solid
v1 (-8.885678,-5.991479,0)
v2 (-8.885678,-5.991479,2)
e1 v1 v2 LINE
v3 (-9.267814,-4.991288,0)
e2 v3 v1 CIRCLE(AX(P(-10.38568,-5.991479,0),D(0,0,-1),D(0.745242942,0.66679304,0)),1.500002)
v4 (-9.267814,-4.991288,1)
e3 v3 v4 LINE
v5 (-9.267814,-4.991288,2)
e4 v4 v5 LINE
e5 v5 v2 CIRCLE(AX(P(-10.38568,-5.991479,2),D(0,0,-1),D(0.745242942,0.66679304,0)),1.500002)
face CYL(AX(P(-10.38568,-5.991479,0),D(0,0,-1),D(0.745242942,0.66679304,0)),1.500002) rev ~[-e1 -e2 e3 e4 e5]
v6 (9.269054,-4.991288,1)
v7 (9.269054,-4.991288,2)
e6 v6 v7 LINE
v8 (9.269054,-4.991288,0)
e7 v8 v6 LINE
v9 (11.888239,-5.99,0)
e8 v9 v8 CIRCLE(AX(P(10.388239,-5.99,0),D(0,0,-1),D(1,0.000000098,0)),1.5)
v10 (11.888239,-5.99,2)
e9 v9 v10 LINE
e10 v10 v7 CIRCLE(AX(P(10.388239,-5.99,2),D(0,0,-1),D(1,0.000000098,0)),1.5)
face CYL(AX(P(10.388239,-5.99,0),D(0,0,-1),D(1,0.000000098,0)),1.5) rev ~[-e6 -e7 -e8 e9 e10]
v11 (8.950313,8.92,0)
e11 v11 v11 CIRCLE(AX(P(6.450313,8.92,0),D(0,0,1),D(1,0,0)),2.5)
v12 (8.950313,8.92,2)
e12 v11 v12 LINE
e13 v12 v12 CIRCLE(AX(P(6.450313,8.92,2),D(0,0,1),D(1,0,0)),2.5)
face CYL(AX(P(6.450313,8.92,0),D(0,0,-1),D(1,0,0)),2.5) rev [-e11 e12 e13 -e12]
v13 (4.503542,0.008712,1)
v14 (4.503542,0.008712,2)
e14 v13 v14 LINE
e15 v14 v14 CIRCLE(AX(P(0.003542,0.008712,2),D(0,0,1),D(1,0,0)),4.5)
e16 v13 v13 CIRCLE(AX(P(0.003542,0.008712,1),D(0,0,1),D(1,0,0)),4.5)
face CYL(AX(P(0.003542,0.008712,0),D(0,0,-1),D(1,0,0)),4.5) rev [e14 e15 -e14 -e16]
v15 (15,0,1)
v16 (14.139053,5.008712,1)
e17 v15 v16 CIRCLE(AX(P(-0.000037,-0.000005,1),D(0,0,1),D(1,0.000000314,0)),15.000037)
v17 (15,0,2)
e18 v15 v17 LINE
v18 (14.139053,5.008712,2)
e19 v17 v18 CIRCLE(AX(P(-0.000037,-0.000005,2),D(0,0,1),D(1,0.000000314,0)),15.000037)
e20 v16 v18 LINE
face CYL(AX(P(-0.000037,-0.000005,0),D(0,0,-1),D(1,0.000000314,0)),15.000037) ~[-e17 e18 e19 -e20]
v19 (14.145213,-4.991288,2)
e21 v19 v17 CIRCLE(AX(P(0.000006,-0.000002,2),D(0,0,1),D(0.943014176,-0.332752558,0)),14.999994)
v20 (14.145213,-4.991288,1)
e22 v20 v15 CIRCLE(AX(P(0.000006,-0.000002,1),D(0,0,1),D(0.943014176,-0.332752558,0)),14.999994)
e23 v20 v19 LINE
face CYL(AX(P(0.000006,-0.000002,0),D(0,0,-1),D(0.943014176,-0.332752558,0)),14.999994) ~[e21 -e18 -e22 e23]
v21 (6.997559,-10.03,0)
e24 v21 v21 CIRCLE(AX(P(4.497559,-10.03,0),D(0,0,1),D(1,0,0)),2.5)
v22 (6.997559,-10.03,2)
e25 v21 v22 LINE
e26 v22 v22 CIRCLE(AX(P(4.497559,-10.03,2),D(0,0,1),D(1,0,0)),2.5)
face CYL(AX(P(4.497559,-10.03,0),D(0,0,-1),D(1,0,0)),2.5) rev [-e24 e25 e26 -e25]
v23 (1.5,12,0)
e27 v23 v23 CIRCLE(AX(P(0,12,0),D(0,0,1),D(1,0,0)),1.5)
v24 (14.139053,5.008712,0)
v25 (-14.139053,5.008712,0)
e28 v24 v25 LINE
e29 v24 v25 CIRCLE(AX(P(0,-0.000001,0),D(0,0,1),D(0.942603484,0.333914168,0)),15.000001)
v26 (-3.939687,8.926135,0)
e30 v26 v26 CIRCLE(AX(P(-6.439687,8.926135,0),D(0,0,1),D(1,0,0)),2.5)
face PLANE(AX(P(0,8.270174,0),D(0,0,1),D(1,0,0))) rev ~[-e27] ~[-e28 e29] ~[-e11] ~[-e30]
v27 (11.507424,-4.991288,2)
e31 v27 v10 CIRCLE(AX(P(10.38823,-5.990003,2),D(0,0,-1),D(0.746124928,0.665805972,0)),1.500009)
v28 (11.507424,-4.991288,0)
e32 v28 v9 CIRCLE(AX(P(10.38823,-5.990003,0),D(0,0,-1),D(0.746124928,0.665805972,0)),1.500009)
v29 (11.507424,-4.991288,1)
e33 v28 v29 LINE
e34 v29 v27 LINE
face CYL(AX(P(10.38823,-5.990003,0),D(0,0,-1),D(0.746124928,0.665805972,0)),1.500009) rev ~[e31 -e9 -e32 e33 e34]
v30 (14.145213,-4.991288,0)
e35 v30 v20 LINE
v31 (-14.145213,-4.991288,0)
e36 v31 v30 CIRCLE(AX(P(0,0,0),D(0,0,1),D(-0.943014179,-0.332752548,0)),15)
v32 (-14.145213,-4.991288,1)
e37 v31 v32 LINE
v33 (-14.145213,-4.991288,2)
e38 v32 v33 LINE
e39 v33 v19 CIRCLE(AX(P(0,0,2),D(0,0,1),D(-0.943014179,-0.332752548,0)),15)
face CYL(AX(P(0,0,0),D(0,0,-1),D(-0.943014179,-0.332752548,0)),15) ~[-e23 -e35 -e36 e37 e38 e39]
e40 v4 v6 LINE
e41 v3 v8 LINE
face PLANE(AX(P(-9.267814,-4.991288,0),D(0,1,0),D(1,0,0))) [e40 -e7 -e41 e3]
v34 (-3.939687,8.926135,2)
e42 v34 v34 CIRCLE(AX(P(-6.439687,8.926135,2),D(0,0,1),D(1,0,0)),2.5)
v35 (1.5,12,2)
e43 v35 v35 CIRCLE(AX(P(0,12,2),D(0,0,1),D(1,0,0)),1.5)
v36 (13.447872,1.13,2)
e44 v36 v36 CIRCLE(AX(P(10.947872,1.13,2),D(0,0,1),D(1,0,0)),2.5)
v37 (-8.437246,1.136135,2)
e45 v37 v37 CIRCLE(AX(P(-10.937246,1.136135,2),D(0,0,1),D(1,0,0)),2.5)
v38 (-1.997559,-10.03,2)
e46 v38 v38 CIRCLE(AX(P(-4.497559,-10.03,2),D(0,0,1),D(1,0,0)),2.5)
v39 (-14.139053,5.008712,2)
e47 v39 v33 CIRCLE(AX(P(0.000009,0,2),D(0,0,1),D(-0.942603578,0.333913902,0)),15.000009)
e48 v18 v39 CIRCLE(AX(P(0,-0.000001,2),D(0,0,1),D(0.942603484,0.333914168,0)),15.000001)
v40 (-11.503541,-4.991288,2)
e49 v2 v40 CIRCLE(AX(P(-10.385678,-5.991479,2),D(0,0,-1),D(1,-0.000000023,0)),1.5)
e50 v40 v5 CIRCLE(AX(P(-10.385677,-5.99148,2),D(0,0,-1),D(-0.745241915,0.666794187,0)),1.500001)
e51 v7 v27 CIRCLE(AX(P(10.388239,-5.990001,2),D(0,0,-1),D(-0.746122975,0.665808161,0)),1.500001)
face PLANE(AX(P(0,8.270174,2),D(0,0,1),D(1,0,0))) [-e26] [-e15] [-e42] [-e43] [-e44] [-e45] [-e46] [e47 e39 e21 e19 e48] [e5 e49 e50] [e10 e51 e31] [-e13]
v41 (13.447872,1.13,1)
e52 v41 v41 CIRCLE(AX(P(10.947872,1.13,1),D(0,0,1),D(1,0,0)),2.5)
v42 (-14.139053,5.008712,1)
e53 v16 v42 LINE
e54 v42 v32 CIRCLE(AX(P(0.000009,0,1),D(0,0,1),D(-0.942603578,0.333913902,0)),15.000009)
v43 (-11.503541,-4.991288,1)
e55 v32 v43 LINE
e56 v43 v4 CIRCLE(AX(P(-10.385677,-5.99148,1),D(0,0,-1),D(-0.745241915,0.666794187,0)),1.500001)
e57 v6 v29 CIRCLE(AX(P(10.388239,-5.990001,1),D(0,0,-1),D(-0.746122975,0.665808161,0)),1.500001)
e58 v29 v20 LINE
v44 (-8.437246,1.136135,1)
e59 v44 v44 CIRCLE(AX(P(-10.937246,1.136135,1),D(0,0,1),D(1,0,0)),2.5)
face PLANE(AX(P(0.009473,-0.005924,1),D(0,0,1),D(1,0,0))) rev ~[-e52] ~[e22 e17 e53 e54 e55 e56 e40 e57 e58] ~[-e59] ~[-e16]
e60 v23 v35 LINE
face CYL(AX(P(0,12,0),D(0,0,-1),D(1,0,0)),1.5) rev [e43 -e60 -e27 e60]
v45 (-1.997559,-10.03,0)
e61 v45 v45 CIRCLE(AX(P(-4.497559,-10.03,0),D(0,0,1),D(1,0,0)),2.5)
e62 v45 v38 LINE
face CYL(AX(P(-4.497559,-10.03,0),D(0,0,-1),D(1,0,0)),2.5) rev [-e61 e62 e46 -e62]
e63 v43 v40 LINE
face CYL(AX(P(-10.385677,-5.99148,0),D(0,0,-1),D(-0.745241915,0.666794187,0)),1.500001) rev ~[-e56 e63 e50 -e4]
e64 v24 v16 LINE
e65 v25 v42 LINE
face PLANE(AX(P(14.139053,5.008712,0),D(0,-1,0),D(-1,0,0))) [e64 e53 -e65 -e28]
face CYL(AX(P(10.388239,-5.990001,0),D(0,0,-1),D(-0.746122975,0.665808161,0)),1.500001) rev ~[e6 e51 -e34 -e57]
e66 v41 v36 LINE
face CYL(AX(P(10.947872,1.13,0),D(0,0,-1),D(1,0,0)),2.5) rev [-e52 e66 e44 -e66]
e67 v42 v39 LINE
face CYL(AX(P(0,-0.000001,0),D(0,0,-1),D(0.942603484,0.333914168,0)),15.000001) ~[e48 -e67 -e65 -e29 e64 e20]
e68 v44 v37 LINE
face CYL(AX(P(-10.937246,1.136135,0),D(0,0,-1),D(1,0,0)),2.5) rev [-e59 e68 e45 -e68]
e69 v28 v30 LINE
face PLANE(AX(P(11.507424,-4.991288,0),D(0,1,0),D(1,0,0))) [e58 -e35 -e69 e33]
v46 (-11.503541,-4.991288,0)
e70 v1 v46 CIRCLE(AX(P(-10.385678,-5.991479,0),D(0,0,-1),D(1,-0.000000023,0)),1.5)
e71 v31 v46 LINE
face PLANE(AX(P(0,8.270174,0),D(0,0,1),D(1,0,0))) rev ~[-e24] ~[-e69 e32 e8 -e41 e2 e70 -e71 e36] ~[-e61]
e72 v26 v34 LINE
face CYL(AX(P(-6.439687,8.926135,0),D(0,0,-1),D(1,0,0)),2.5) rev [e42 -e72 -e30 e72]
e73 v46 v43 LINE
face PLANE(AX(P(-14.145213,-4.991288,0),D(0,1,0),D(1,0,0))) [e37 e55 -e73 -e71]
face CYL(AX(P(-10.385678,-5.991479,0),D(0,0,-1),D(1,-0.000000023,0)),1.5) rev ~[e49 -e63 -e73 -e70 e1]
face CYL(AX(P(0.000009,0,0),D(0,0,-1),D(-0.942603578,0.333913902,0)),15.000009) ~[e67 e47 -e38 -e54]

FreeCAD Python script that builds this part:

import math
import FreeCAD as App
import Part
import Sketcher
Q = App.Units.Quantity

doc = App.newDocument("Part")
params = doc.addObject("Spreadsheet::Sheet", "Params")
for row, (alias, value) in enumerate([
    ("sketch1_diameter", "5 mm"),
    ("sketch1_diameter2", "9 mm"),
    ("sketch1_diameter3", "5 mm"),
    ("sketch1_diameter4", "5 mm"),
    ("sketch1_diameter5", "5 mm"),
    ("pad1_length", "2 mm"),
    ("sketch2_diameter", "5 mm"),
    ("sketch2_diameter2", "9 mm"),
    ("sketch2_radius", "1.500001 mm"),
    ("pocket1_length", "1 mm"),
], start=1):
    params.set(f"A{row}", alias)
    params.set(f"B{row}", "=" + value)
    params.setAlias(f"B{row}", alias)

body = doc.addObject("PartDesign::Body", "Body")

sketch1 = body.newObject("Sketcher::SketchObject", "Sketch")
sketch1.AttachmentSupport = (doc.getObject("XY_Plane"), [""])
sketch1.MapMode = "FlatFace"
sketch1.addGeometry([
    Part.ArcOfCircle(Part.Circle(App.Vector(0, -0.000001, 0), App.Vector(0, 0, 1), 15.000001), math.radians(19.506523), math.radians(160.493477)),
    Part.ArcOfCircle(Part.Circle(App.Vector(0.000009, 0, 0), App.Vector(0, 0, 1), 15.000009), math.radians(160.493494), math.radians(199.435918)),
    Part.ArcOfCircle(Part.Circle(App.Vector(0, 0, 0), App.Vector(0, 0, 1), 15), math.radians(-160.564071), math.radians(-19.435929)),
    Part.ArcOfCircle(Part.Circle(App.Vector(0.000006, -0.000002, 0), App.Vector(0, 0, 1), 14.999994), math.radians(-19.43593), math.radians(0.000007)),
    Part.ArcOfCircle(Part.Circle(App.Vector(-0.000037, -0.000005, 0), App.Vector(0, 0, 1), 15.000037), math.radians(0.000018), math.radians(19.50649)),
    Part.Circle(App.Vector(-4.497559, -10.03, 0), App.Vector(0, 0, 1), 2.5),
    Part.ArcOfCircle(Part.Circle(App.Vector(-10.385677, -5.99148, 0), App.Vector(0, 0, 1), 1.500001), math.radians(41.820118), math.radians(138.179882)),
    Part.ArcOfCircle(Part.Circle(App.Vector(-10.38568, -5.991479, 0), App.Vector(0, 0, 1), 1.500002), math.radians(-0.000014), math.radians(41.82003)),
    Part.ArcOfCircle(Part.Circle(App.Vector(-10.385678, -5.991479, 0), App.Vector(0, 0, 1), 1.5), math.radians(138.179896), math.radians(359.999999)),
    Part.Circle(App.Vector(0.003542, 0.008712, 0), App.Vector(0, 0, 1), 4.5),
    Part.Circle(App.Vector(4.497559, -10.03, 0), App.Vector(0, 0, 1), 2.5),
    Part.ArcOfCircle(Part.Circle(App.Vector(10.388239, -5.990001, 0), App.Vector(0, 0, 1), 1.500001), math.radians(41.744355), math.radians(138.255645)),
    Part.ArcOfCircle(Part.Circle(App.Vector(10.38823, -5.990003, 0), App.Vector(0, 0, 1), 1.500009), math.radians(0.000123), math.radians(41.744187)),
    Part.ArcOfCircle(Part.Circle(App.Vector(10.388239, -5.99, 0), App.Vector(0, 0, 1), 1.5), math.radians(138.255656), math.radians(360.000006)),
    Part.Circle(App.Vector(-10.937246, 1.136135, 0), App.Vector(0, 0, 1), 2.5),
    Part.Circle(App.Vector(-6.439687, 8.926135, 0), App.Vector(0, 0, 1), 2.5),
    Part.Circle(App.Vector(0, 12, 0), App.Vector(0, 0, 1), 1.5),
    Part.Circle(App.Vector(10.947872, 1.13, 0), App.Vector(0, 0, 1), 2.5),
    Part.Circle(App.Vector(6.450313, 8.92, 0), App.Vector(0, 0, 1), 2.5),
], False)
sketch1.addConstraint([
    Sketcher.Constraint("Coincident", 0, 2, 1, 1),
    Sketcher.Constraint("Coincident", 1, 2, 2, 1),
    Sketcher.Constraint("Coincident", 2, 2, 3, 1),
    Sketcher.Constraint("Coincident", 3, 2, 4, 1),
    Sketcher.Constraint("Coincident", 4, 2, 0, 1),
    Sketcher.Constraint("Coincident", 6, 1, 7, 2),
    Sketcher.Constraint("Coincident", 7, 1, 8, 2),
    Sketcher.Constraint("Coincident", 8, 1, 6, 2),
    Sketcher.Constraint("Coincident", 11, 1, 12, 2),
    Sketcher.Constraint("Coincident", 12, 1, 13, 2),
    Sketcher.Constraint("Coincident", 13, 1, 11, 2),
    Sketcher.Constraint("Coincident", 0, 3, -1, 1),
    Sketcher.Constraint("Coincident", 1, 3, -1, 1),
    Sketcher.Constraint("Coincident", 2, 3, -1, 1),
    Sketcher.Constraint("Coincident", 3, 3, -1, 1),
    Sketcher.Constraint("Coincident", 7, 3, 6, 3),
    Sketcher.Constraint("Coincident", 12, 3, 11, 3),
    Sketcher.Constraint("PointOnObject", 16, 3, -2),
    Sketcher.Constraint("PointOnObject", 3, 2, -1),
    Sketcher.Constraint("Diameter", 5, Q("5 mm")),
    Sketcher.Constraint("Diameter", 9, Q("9 mm")),
    Sketcher.Constraint("Diameter", 10, Q("5 mm")),
    Sketcher.Constraint("Diameter", 14, Q("5 mm")),
    Sketcher.Constraint("Diameter", 15, Q("5 mm")),
    Sketcher.Constraint("Diameter", 16, Q("3 mm")),
    Sketcher.Constraint("Diameter", 17, Q("5 mm")),
    Sketcher.Constraint("Diameter", 18, Q("5 mm")),
    Sketcher.Constraint("Radius", 0, Q("15.000001 mm")),
    Sketcher.Constraint("Radius", 6, Q("1.500001 mm")),
    Sketcher.Constraint("Radius", 8, Q("1.5 mm")),
    Sketcher.Constraint("Radius", 11, Q("1.500001 mm")),
    Sketcher.Constraint("Radius", 13, Q("1.5 mm")),
    Sketcher.Constraint("DistanceY", -1, 1, 16, 3, Q("12 mm")),
    Sketcher.Constraint("DistanceY", 1, 2, 0, 2, Q("10 mm")),
    Sketcher.Constraint("DistanceY", 2, 2, 4, 2, Q("10 mm")),
    Sketcher.Constraint("DistanceY", 5, 3, -1, 1, Q("10.03 mm")),
    Sketcher.Constraint("DistanceY", 10, 3, -1, 1, Q("10.03 mm")),
    Sketcher.Constraint("DistanceY", 11, 3, -1, 1, Q("5.990001 mm")),
    Sketcher.Constraint("DistanceY", -1, 1, 17, 3, Q("1.13 mm")),
    Sketcher.Constraint("DistanceY", -1, 1, 18, 3, Q("8.92 mm")),
    Sketcher.Constraint("DistanceY", 12, 1, -1, 1, Q("5.99 mm")),
    Sketcher.Constraint("DistanceY", 14, 3, 15, 3, Q("7.79 mm")),
    Sketcher.Constraint("Radius", 4, Q("15.000037 mm")),
    Sketcher.Constraint("DistanceX", 1, 2, 6, 1, Q("4.877399 mm")),
    Sketcher.Constraint("DistanceX", 5, 3, -1, 1, Q("4.497559 mm")),
    Sketcher.Constraint("DistanceY", 6, 3, -1, 1, Q("5.99148 mm")),
    Sketcher.Constraint("DistanceX", 7, 3, -1, 1, Q("10.38568 mm")),
    Sketcher.Constraint("DistanceX", -1, 1, 9, 3, Q("0.003542 mm")),
    Sketcher.Constraint("DistanceY", -1, 1, 9, 3, Q("0.008712 mm")),
    Sketcher.Constraint("DistanceX", -1, 1, 10, 3, Q("4.497559 mm")),
    Sketcher.Constraint("DistanceX", -1, 1, 11, 3, Q("10.388239 mm")),
    Sketcher.Constraint("DistanceY", -1, 1, 0, 2, Q("5.008712 mm")),
    Sketcher.Constraint("DistanceY", -1, 1, 4, 2, Q("5.008712 mm")),
    Sketcher.Constraint("DistanceY", 7, 1, -1, 1, Q("5.991479 mm")),
    Sketcher.Constraint("DistanceX", 8, 1, -1, 1, Q("11.503541 mm")),
    Sketcher.Constraint("DistanceY", 11, 1, -1, 1, Q("4.991288 mm")),
    Sketcher.Constraint("DistanceY", 13, 1, -1, 1, Q("4.991288 mm")),
    Sketcher.Constraint("DistanceX", 14, 3, 8, 3, Q("0.551568 mm")),
    Sketcher.Constraint("DistanceY", 4, 3, 14, 3, Q("1.13614 mm")),
    Sketcher.Constraint("DistanceX", 14, 3, 15, 3, Q("4.497559 mm")),
    Sketcher.Constraint("DistanceX", 9, 3, 17, 3, Q("10.94433 mm")),
    Sketcher.Constraint("DistanceX", 18, 3, 17, 3, Q("4.497559 mm")),
])
sketch1.setExpression("Constraints[19]", "Params.sketch1_diameter")
sketch1.setExpression("Constraints[20]", "Params.sketch1_diameter2")
sketch1.setExpression("Constraints[21]", "Params.sketch1_diameter3")
sketch1.setExpression("Constraints[22]", "Params.sketch1_diameter4")
sketch1.setExpression("Constraints[23]", "Params.sketch1_diameter5")
pad1 = body.newObject("PartDesign::Pad", "Pad")
pad1.Profile = sketch1
pad1.setExpression("Length", "Params.pad1_length")

sketch2 = body.newObject("Sketcher::SketchObject", "Sketch001")
sketch2.AttachmentSupport = (doc.getObject("XY_Plane"), [""])
sketch2.MapMode = "FlatFace"
sketch2.addGeometry([
    Part.ArcOfCircle(Part.Circle(App.Vector(0.000006, -0.000002, 0), App.Vector(0, 0, 1), 14.999994), math.radians(-19.43593), math.radians(0.000007)),
    Part.ArcOfCircle(Part.Circle(App.Vector(-0.000037, -0.000005, 0), App.Vector(0, 0, 1), 15.000037), math.radians(0.000018), math.radians(19.50649)),
    Part.LineSegment(App.Vector(14.139053, 5.008712, 0), App.Vector(-14.139053, 5.008712, 0)),
    Part.ArcOfCircle(Part.Circle(App.Vector(0.000009, 0, 0), App.Vector(0, 0, 1), 15.000009), math.radians(160.493494), math.radians(199.435918)),
    Part.LineSegment(App.Vector(-14.145213, -4.991288, 0), App.Vector(-11.503541, -4.991288, 0)),
    Part.ArcOfCircle(Part.Circle(App.Vector(-10.385677, -5.99148, 0), App.Vector(0, 0, 1), 1.500001), math.radians(41.820118), math.radians(138.179882)),
    Part.LineSegment(App.Vector(-9.267814, -4.991288, 0), App.Vector(9.269054, -4.991288, 0)),
    Part.ArcOfCircle(Part.Circle(App.Vector(10.388239, -5.990001, 0), App.Vector(0, 0, 1), 1.500001), math.radians(41.744355), math.radians(138.255645)),
    Part.LineSegment(App.Vector(11.507424, -4.991288, 0), App.Vector(14.145213, -4.991288, 0)),
    Part.Circle(App.Vector(-10.937246, 1.136135, 0), App.Vector(0, 0, 1), 2.5),
    Part.Circle(App.Vector(0.003542, 0.008712, 0), App.Vector(0, 0, 1), 4.5),
    Part.Circle(App.Vector(10.947872, 1.13, 0), App.Vector(0, 0, 1), 2.5),
], False)
sketch2.addConstraint([
    Sketcher.Constraint("Tangent", 0, 2, 1, 1),
    Sketcher.Constraint("Coincident", 1, 2, 2, 1),
    Sketcher.Constraint("Coincident", 2, 2, 3, 1),
    Sketcher.Constraint("Coincident", 3, 2, 4, 1),
    Sketcher.Constraint("Coincident", 4, 2, 5, 2),
    Sketcher.Constraint("Coincident", 5, 1, 6, 1),
    Sketcher.Constraint("Coincident", 6, 2, 7, 2),
    Sketcher.Constraint("Coincident", 7, 1, 8, 1),
    Sketcher.Constraint("Coincident", 8, 2, 0, 1),
    Sketcher.Constraint("Horizontal", 2),
    Sketcher.Constraint("Horizontal", 4),
    Sketcher.Constraint("Horizontal", 6),
    Sketcher.Constraint("Horizontal", 8),
    Sketcher.Constraint("Coincident", 0, 3, -1, 1),
    Sketcher.Constraint("Coincident", 3, 3, -1, 1),
    Sketcher.Constraint("Equal", 5, 7),
    Sketcher.Constraint("Equal", 9, 11),
    Sketcher.Constraint("Symmetric", 3, 2, 8, 2, -2),
    Sketcher.Constraint("PointOnObject", 0, 2, -1),
    Sketcher.Constraint("Horizontal", 4, 2, 5, 1),
    Sketcher.Constraint("Diameter", 9, Q("5 mm")),
    Sketcher.Constraint("Diameter", 10, Q("9 mm")),
    Sketcher.Constraint("Radius", 5, Q("1.500001 mm")),
    Sketcher.Constraint("DistanceX", -1, 1, 0, 2, Q("15 mm")),
    Sketcher.Constraint("DistanceY", 10, 3, 1, 2, Q("5 mm")),
    Sketcher.Constraint("DistanceY", 3, 2, 2, 2, Q("10 mm")),
    Sketcher.Constraint("DistanceY", 7, 3, -1, 1, Q("5.990001 mm")),
    Sketcher.Constraint("DistanceY", -1, 1, 11, 3, Q("1.13 mm")),
    Sketcher.Constraint("Radius", 1, Q("15.000037 mm")),
    Sketcher.Constraint("DistanceX", 4, 1, 4, 2, Q("2.641672 mm")),
    Sketcher.Constraint("DistanceX", 8, 1, 8, 2, Q("2.637789 mm")),
    Sketcher.Constraint("DistanceX", 3, 2, 5, 1, Q("4.877399 mm")),
    Sketcher.Constraint("DistanceX", 2, 2, 2, 1, Q("28.278106 mm")),
    Sketcher.Constraint("DistanceX", -1, 1, 10, 3, Q("0.003542 mm")),
    Sketcher.Constraint("DistanceX", 9, 3, 5, 3, Q("0.551569 mm")),
    Sketcher.Constraint("DistanceY", 1, 3, 9, 3, Q("1.13614 mm")),
    Sketcher.Constraint("DistanceX", 10, 3, 11, 3, Q("10.94433 mm")),
])
sketch2.setExpression("Constraints[20]", "Params.sketch2_diameter")
sketch2.setExpression("Constraints[21]", "Params.sketch2_diameter2")
sketch2.setExpression("Constraints[22]", "Params.sketch2_radius")
pocket1 = body.newObject("PartDesign::Pocket", "Pocket")
pocket1.Profile = sketch2
pocket1.setExpression("Length", "Params.pocket1_length")
pocket1.Reversed = True

doc.recompute()
